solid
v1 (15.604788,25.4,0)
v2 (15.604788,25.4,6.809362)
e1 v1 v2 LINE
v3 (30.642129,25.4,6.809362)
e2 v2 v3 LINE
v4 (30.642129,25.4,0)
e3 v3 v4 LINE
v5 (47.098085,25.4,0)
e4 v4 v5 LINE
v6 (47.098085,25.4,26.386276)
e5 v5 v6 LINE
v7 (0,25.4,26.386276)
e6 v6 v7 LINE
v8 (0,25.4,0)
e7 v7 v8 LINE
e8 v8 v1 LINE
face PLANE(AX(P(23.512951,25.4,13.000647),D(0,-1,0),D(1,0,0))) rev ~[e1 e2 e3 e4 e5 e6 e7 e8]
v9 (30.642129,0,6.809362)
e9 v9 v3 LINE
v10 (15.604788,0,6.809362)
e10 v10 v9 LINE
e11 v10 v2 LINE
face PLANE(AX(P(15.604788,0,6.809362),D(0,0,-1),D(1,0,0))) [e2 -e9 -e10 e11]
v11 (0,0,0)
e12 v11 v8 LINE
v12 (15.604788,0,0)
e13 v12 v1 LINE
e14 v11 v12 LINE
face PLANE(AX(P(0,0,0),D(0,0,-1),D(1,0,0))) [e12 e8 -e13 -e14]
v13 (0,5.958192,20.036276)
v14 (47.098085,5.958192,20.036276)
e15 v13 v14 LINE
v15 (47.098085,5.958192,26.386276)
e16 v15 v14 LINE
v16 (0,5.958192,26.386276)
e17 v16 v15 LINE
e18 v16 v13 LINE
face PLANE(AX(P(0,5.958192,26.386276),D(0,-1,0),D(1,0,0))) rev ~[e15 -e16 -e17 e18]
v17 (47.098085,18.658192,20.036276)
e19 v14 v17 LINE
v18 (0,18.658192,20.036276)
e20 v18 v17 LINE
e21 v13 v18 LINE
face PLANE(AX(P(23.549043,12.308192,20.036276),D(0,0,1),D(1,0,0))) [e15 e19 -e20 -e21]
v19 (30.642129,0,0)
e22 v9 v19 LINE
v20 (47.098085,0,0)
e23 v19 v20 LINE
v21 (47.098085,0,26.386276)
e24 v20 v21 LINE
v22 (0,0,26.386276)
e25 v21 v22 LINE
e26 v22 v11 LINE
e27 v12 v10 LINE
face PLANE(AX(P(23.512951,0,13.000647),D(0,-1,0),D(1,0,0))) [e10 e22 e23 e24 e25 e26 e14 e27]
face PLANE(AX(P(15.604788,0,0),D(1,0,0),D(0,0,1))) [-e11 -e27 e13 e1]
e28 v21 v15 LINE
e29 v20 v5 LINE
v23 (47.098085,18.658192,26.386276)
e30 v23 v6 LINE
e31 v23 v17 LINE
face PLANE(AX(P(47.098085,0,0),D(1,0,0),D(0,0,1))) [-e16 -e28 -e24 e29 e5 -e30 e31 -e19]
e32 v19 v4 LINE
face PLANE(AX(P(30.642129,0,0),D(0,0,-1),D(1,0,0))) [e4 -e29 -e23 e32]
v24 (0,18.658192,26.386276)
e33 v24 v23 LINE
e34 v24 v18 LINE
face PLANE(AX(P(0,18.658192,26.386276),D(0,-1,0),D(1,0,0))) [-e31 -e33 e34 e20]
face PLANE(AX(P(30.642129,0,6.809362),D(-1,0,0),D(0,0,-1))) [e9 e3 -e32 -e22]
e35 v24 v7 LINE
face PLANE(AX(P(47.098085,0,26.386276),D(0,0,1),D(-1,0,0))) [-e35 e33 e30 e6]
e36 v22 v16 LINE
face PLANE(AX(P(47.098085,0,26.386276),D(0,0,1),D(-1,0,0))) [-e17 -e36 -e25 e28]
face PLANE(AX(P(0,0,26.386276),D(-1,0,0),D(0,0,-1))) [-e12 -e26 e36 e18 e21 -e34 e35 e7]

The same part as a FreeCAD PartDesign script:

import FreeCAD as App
import Part
import Sketcher
Q = App.Units.Quantity

doc = App.newDocument("Part")
body = doc.addObject("PartDesign::Body", "Body")

# Sketch on XZ plane
sketch1 = doc.addObject("Sketcher::SketchObject", "Sketch")
body.addObject(sketch1)
sketch1.AttachmentSupport = (doc.XZ_Plane, [""])
sketch1.MapMode = "FlatFace"
sketch1.addGeometry(Part.LineSegment(App.Vector(0, 26.386276, 0), App.Vector(0, 0, 0)), False)
sketch1.addGeometry(Part.LineSegment(App.Vector(0, 0, 0), App.Vector(15.604788, 0, 0)), False)
sketch1.addGeometry(Part.LineSegment(App.Vector(15.604788, 0, 0), App.Vector(15.604788, 6.809362, 0)), False)
sketch1.addGeometry(Part.LineSegment(App.Vector(15.604788, 6.809362, 0), App.Vector(30.642129, 6.809362, 0)), False)
sketch1.addGeometry(Part.LineSegment(App.Vector(30.642129, 6.809362, 0), App.Vector(30.642129, 0, 0)), False)
sketch1.addGeometry(Part.LineSegment(App.Vector(30.642129, 0, 0), App.Vector(47.098085, 0, 0)), False)
sketch1.addGeometry(Part.LineSegment(App.Vector(47.098085, 0, 0), App.Vector(47.098085, 26.386276, 0)), False)
sketch1.addGeometry(Part.LineSegment(App.Vector(47.098085, 26.386276, 0), App.Vector(0, 26.386276, 0)), False)
sketch1.addConstraint(Sketcher.Constraint("Coincident", 0, 2, 1, 1))
sketch1.addConstraint(Sketcher.Constraint("Coincident", 1, 2, 2, 1))
sketch1.addConstraint(Sketcher.Constraint("Coincident", 2, 2, 3, 1))
sketch1.addConstraint(Sketcher.Constraint("Coincident", 3, 2, 4, 1))
sketch1.addConstraint(Sketcher.Constraint("Coincident", 4, 2, 5, 1))
sketch1.addConstraint(Sketcher.Constraint("Coincident", 5, 2, 6, 1))
sketch1.addConstraint(Sketcher.Constraint("Coincident", 6, 2, 7, 1))
sketch1.addConstraint(Sketcher.Constraint("Coincident", 7, 2, 0, 1))
sketch1.addConstraint(Sketcher.Constraint("Vertical", 0))
sketch1.addConstraint(Sketcher.Constraint("Horizontal", 1))
sketch1.addConstraint(Sketcher.Constraint("Vertical", 2))
sketch1.addConstraint(Sketcher.Constraint("Horizontal", 3))
sketch1.addConstraint(Sketcher.Constraint("Vertical", 4))
sketch1.addConstraint(Sketcher.Constraint("Horizontal", 5))
sketch1.addConstraint(Sketcher.Constraint("Vertical", 6))
sketch1.addConstraint(Sketcher.Constraint("Horizontal", 7))
sketch1.addConstraint(Sketcher.Constraint("Coincident", 0, 2, -1, 1))
sketch1.addConstraint(Sketcher.Constraint("PointOnObject", 4, 2, -1))
sketch1.addConstraint(Sketcher.Constraint("DistanceX", 1, 1, 1, 2, 15.604788))
sketch1.addConstraint(Sketcher.Constraint("DistanceX", 3, 1, 3, 2, 15.037341))
sketch1.addConstraint(Sketcher.Constraint("DistanceY", 2, 1, 2, 2, 6.809362))
sketch1.addConstraint(Sketcher.Constraint("DistanceX", 5, 1, 5, 2, 16.455956))
sketch1.addConstraint(Sketcher.Constraint("DistanceY", 0, 2, 0, 1, 26.386276))
pad1 = doc.addObject("PartDesign::Pad", "Pad")
body.addObject(pad1)
pad1.Profile = sketch1
pad1.Length = Q("1 in")
pad1.Reversed = True

# Sketch on XY plane
sketch2 = doc.addObject("Sketcher::SketchObject", "Sketch001")
body.addObject(sketch2)
sketch2.AttachmentSupport = (doc.XY_Plane, [""])
sketch2.MapMode = "FlatFace"
sketch2.AttachmentOffset = App.Placement(App.Vector(0, 0, 26.386276), App.Rotation())
sketch2.addGeometry(Part.LineSegment(App.Vector(0, 18.658192, 0), App.Vector(0, 5.958192, 0)), False)
sketch2.addGeometry(Part.LineSegment(App.Vector(0, 5.958192, 0), App.Vector(47.098085, 5.958192, 0)), False)
sketch2.addGeometry(Part.LineSegment(App.Vector(47.098085, 5.958192, 0), App.Vector(47.098085, 18.658192, 0)), False)
sketch2.addGeometry(Part.LineSegment(App.Vector(47.098085, 18.658192, 0), App.Vector(0, 18.658192, 0)), False)
sketch2.addConstraint(Sketcher.Constraint("Coincident", 0, 2, 1, 1))
sketch2.addConstraint(Sketcher.Constraint("Coincident", 1, 2, 2, 1))
sketch2.addConstraint(Sketcher.Constraint("Coincident", 2, 2, 3, 1))
sketch2.addConstraint(Sketcher.Constraint("Coincident", 3, 2, 0, 1))
sketch2.addConstraint(Sketcher.Constraint("Vertical", 0))
sketch2.addConstraint(Sketcher.Constraint("Horizontal", 1))
sketch2.addConstraint(Sketcher.Constraint("Vertical", 2))
sketch2.addConstraint(Sketcher.Constraint("Horizontal", 3))
sketch2.addConstraint(Sketcher.Constraint("PointOnObject", 0, 2, -2))
sketch2.addConstraint(Sketcher.Constraint("DistanceY", 0, 2, 0, 1, Q("0.5 in")))
sketch2.addConstraint(Sketcher.Constraint("DistanceX", 1, 1, 1, 2, 47.098085))
sketch2.addConstraint(Sketcher.Constraint("DistanceY", -1, 1, 0, 2, 5.958192))
pocket1 = doc.addObject("PartDesign::Pocket", "Pocket")
body.addObject(pocket1)
pocket1.Profile = sketch2
pocket1.Length = Q("0.25 in")

doc.recompute()
